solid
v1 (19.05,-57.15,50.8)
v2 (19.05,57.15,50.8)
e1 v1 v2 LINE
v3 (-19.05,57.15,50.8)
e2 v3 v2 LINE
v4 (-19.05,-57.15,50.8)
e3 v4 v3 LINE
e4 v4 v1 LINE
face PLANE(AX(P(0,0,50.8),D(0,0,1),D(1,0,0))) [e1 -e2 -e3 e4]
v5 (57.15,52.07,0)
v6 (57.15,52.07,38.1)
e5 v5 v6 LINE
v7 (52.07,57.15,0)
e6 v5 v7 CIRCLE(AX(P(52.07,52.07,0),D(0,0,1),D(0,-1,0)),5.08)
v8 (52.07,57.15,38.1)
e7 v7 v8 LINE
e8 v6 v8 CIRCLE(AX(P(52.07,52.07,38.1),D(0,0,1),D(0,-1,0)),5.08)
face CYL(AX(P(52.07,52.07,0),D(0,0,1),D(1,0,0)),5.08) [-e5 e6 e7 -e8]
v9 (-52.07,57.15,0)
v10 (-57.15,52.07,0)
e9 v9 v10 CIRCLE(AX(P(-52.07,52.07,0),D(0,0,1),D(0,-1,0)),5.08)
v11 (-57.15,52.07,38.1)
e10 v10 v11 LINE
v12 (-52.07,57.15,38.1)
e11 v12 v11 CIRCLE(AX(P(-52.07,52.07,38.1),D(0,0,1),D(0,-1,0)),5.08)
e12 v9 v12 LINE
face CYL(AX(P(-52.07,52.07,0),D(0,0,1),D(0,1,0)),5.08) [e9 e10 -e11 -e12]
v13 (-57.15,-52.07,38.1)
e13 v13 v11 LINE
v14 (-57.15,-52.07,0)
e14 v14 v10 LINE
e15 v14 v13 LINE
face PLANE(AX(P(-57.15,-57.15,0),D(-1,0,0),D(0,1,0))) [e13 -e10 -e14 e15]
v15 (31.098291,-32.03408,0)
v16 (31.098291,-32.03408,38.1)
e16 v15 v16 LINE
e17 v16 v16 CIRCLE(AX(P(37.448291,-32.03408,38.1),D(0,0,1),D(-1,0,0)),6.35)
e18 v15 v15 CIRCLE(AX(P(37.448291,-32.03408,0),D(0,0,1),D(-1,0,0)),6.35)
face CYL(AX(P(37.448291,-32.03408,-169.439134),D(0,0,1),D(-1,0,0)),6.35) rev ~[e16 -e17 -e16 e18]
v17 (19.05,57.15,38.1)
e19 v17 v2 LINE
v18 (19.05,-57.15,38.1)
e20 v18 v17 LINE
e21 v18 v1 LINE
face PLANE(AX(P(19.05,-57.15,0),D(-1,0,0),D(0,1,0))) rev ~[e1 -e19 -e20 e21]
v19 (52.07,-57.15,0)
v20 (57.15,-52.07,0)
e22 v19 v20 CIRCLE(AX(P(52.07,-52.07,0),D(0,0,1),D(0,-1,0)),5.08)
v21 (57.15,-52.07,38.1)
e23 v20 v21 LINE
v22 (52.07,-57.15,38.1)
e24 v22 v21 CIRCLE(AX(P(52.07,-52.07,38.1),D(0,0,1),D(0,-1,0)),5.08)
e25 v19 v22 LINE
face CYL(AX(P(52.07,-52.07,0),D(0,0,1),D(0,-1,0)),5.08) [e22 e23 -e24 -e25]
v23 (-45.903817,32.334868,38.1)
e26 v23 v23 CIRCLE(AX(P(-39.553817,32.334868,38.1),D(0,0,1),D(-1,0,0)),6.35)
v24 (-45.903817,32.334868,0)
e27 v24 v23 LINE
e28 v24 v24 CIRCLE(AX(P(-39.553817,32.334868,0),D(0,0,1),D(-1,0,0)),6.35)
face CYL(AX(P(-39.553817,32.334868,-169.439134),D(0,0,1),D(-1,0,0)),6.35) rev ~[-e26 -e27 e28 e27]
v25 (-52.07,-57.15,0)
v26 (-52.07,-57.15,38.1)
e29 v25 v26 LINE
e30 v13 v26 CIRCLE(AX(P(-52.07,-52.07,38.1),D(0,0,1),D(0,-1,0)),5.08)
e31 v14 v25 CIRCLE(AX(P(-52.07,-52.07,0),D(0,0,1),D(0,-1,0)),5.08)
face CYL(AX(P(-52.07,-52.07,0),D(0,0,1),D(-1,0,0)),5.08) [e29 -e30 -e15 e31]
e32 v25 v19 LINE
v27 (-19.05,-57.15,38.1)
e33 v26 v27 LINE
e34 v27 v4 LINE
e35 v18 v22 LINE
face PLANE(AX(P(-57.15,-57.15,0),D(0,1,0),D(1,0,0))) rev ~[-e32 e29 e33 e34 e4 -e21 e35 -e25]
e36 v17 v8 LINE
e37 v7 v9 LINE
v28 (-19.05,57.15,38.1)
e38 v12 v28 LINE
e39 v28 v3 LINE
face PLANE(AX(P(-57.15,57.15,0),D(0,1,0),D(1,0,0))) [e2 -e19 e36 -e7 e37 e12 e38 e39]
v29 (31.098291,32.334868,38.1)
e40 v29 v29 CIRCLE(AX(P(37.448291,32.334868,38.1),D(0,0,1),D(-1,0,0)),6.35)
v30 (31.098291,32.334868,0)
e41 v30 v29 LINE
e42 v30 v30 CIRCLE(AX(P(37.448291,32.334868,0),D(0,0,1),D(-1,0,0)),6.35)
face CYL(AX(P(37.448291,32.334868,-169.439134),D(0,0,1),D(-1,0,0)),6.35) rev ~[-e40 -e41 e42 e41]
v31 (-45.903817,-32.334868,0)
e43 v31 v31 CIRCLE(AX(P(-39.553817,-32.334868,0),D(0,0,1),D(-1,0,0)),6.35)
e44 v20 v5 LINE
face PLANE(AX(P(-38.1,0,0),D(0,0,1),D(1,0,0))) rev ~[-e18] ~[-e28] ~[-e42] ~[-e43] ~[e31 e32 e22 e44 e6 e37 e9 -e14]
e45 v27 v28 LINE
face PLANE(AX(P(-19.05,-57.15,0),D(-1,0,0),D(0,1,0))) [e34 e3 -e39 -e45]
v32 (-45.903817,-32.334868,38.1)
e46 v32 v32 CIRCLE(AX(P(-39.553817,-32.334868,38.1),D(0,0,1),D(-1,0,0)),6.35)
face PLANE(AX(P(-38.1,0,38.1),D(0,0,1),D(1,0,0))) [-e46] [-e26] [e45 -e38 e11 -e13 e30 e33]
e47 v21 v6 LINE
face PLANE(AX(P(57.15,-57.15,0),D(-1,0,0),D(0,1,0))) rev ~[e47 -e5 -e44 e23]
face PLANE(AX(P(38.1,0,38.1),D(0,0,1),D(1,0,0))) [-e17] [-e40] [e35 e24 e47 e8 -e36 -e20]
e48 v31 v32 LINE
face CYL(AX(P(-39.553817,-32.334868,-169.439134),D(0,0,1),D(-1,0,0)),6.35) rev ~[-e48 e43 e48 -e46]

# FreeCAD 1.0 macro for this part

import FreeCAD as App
import Part
import Sketcher

V = App.Vector
Q = App.Units.Quantity


def edges_at(feature, points):
    """Names of the edges that pass closest to the given points."""
    edges = feature.Shape.Edges
    near = lambda p: min(range(len(edges)), key=lambda i: edges[i].distToShape(Part.Vertex(*p))[0])
    return sorted({f"Edge{near(p) + 1}" for p in points})

doc = App.newDocument("Part")
body = doc.addObject("PartDesign::Body", "Body")

# Sketch on XY plane
sketch1 = body.newObject("Sketcher::SketchObject", "Sketch")
sketch1.AttachmentSupport = (doc.getObject("XY_Plane"), [""])
sketch1.MapMode = "FlatFace"
sketch1.addGeometry([
    Part.LineSegment(V(-19, 57, 0), V(-19, -57, 0)),
    Part.LineSegment(V(-19, -57, 0), V(19, -57, 0)),
    Part.LineSegment(V(19, -57, 0), V(19, 57, 0)),
    Part.LineSegment(V(19, 57, 0), V(-19, 57, 0)),
], False)
sketch1.addConstraint([
    Sketcher.Constraint("Coincident", 0, 2, 1, 1),
    Sketcher.Constraint("Coincident", 1, 2, 2, 1),
    Sketcher.Constraint("Coincident", 2, 2, 3, 1),
    Sketcher.Constraint("Coincident", 3, 2, 0, 1),
    Sketcher.Constraint("Vertical", 0),
    Sketcher.Constraint("Horizontal", 1),
    Sketcher.Constraint("Vertical", 2),
    Sketcher.Constraint("Horizontal", 3),
    Sketcher.Constraint("Symmetric", 0, 2, 2, 2, -1, 1),
    Sketcher.Constraint("DistanceX", 1, 1, 1, 2, Q("1.5 in")),
    Sketcher.Constraint("DistanceY", 0, 2, 0, 1, Q("4.5 in")),
])
pad1 = body.newObject("PartDesign::Pad", "Pad")
pad1.Profile = sketch1
pad1.Length = Q("2 in")

# Sketch on XY plane
sketch2 = body.newObject("Sketcher::SketchObject", "Sketch001")
sketch2.AttachmentSupport = (doc.getObject("XY_Plane"), [""])
sketch2.MapMode = "FlatFace"
sketch2.addGeometry([
    Part.LineSegment(V(19, 57, 0), V(19, -57, 0)),
    Part.LineSegment(V(19, -57, 0), V(57, -57, 0)),
    Part.LineSegment(V(57, -57, 0), V(57, 57, 0)),
    Part.LineSegment(V(57, 57, 0), V(19, 57, 0)),
], False)
sketch2.addConstraint([
    Sketcher.Constraint("Coincident", 0, 2, 1, 1),
    Sketcher.Constraint("Coincident", 1, 2, 2, 1),
    Sketcher.Constraint("Coincident", 2, 2, 3, 1),
    Sketcher.Constraint("Coincident", 3, 2, 0, 1),
    Sketcher.Constraint("Vertical", 0),
    Sketcher.Constraint("Horizontal", 1),
    Sketcher.Constraint("Vertical", 2),
    Sketcher.Constraint("Horizontal", 3),
    Sketcher.Constraint("DistanceX", 1, 1, 1, 2, Q("1.5 in")),
    Sketcher.Constraint("DistanceY", 0, 2, 0, 1, Q("4.5 in")),
    Sketcher.Constraint("DistanceX", -1, 1, 0, 2, Q("0.75 in")),
    Sketcher.Constraint("DistanceY", 0, 2, -1, 1, Q("2.25 in")),
])
pad2 = body.newObject("PartDesign::Pad", "Pad001")
pad2.Profile = sketch2
pad2.Length = Q("1.5 in")

# Sketch on XY plane
sketch3 = body.newObject("Sketcher::SketchObject", "Sketch002")
sketch3.AttachmentSupport = (doc.getObject("XY_Plane"), [""])
sketch3.MapMode = "FlatFace"
sketch3.addGeometry([
    Part.LineSegment(V(-57, 57, 0), V(-57, -57, 0)),
    Part.LineSegment(V(-57, -57, 0), V(-19, -57, 0)),
    Part.LineSegment(V(-19, -57, 0), V(-19, 57, 0)),
    Part.LineSegment(V(-19, 57, 0), V(-57, 57, 0)),
], False)
sketch3.addConstraint([
    Sketcher.Constraint("Coincident", 0, 2, 1, 1),
    Sketcher.Constraint("Coincident", 1, 2, 2, 1),
    Sketcher.Constraint("Coincident", 2, 2, 3, 1),
    Sketcher.Constraint("Coincident", 3, 2, 0, 1),
    Sketcher.Constraint("Vertical", 0),
    Sketcher.Constraint("Horizontal", 1),
    Sketcher.Constraint("Vertical", 2),
    Sketcher.Constraint("Horizontal", 3),
    Sketcher.Constraint("DistanceX", 1, 1, 1, 2, Q("1.5 in")),
    Sketcher.Constraint("DistanceY", 0, 2, 0, 1, Q("4.5 in")),
    Sketcher.Constraint("DistanceX", 0, 2, -1, 1, Q("2.25 in")),
    Sketcher.Constraint("DistanceY", 0, 2, -1, 1, Q("2.25 in")),
])
pad3 = body.newObject("PartDesign::Pad", "Pad002")
pad3.Profile = sketch3
pad3.Length = Q("1.5 in")

# Sketch on XY plane
sketch4 = body.newObject("Sketcher::SketchObject", "Sketch003")
sketch4.AttachmentSupport = (doc.getObject("XY_Plane"), [""])
sketch4.MapMode = "FlatFace"
sketch4.addGeometry(Part.Circle(V(37, 32, 0), V(0, 0, 1), 6), False)
sketch4.addConstraint([
    Sketcher.Constraint("Diameter", 0, Q("0.5 in")),
    Sketcher.Constraint("DistanceX", -1, 1, 0, 3, Q("37.448291 mm")),
    Sketcher.Constraint("DistanceY", -1, 1, 0, 3, Q("32.334868 mm")),
])
doc.recompute()
hole = body.newObject("PartDesign::Hole", "Hole")
hole.Profile = sketch4
hole.ThreadType = "None"
hole.Diameter = Q("0.5 in")
hole.DepthType = "ThroughAll"
hole.Reversed = True

# Sketch on XY plane
sketch5 = body.newObject("Sketcher::SketchObject", "Sketch004")
sketch5.AttachmentSupport = (doc.getObject("XY_Plane"), [""])
sketch5.MapMode = "FlatFace"
sketch5.addGeometry(Part.Circle(V(37, -32, 0), V(0, 0, 1), 6), False)
sketch5.addConstraint([
    Sketcher.Constraint("Diameter", 0, Q("0.5 in")),
    Sketcher.Constraint("DistanceX", -1, 1, 0, 3, Q("37.448291 mm")),
    Sketcher.Constraint("DistanceY", 0, 3, -1, 1, Q("32.03408 mm")),
])
doc.recompute()
hole2 = body.newObject("PartDesign::Hole", "Hole001")
hole2.Profile = sketch5
hole2.ThreadType = "None"
hole2.Diameter = Q("0.5 in")
hole2.DepthType = "ThroughAll"
hole2.Reversed = True

# Sketch on XY plane
sketch6 = body.newObject("Sketcher::SketchObject", "Sketch005")
sketch6.AttachmentSupport = (doc.getObject("XY_Plane"), [""])
sketch6.MapMode = "FlatFace"
sketch6.addGeometry(Part.Circle(V(-40, 32, 0), V(0, 0, 1), 6), False)
sketch6.addConstraint([
    Sketcher.Constraint("Diameter", 0, Q("0.5 in")),
    Sketcher.Constraint("DistanceX", 0, 3, -1, 1, Q("39.553817 mm")),
    Sketcher.Constraint("DistanceY", -1, 1, 0, 3, Q("32.334868 mm")),
])
doc.recompute()
hole3 = body.newObject("PartDesign::Hole", "Hole002")
hole3.Profile = sketch6
hole3.ThreadType = "None"
hole3.Diameter = Q("0.5 in")
hole3.DepthType = "ThroughAll"
hole3.Reversed = True

# Sketch on XY plane
sketch7 = body.newObject("Sketcher::SketchObject", "Sketch006")
sketch7.AttachmentSupport = (doc.getObject("XY_Plane"), [""])
sketch7.MapMode = "FlatFace"
sketch7.addGeometry(Part.Circle(V(-40, -32, 0), V(0, 0, 1), 6), False)
sketch7.addConstraint([
    Sketcher.Constraint("Diameter", 0, Q("0.5 in")),
    Sketcher.Constraint("DistanceX", 0, 3, -1, 1, Q("39.553817 mm")),
    Sketcher.Constraint("DistanceY", 0, 3, -1, 1, Q("32.334868 mm")),
])
doc.recompute()
hole4 = body.newObject("PartDesign::Hole", "Hole003")
hole4.Profile = sketch7
hole4.ThreadType = "None"
hole4.Diameter = Q("0.5 in")
hole4.DepthType = "ThroughAll"
hole4.Reversed = True
doc.recompute()

fillet = body.newObject("PartDesign::Fillet", "Fillet")
fillet.Base = (hole4, edges_at(hole4, [(-57.15, -57.15, 19.05)]))
fillet.Radius = Q("0.2 in")
doc.recompute()

fillet2 = body.newObject("PartDesign::Fillet", "Fillet001")
fillet2.Base = (fillet, edges_at(fillet, [(57.15, -57.15, 19.05)]))
fillet2.Radius = Q("0.2 in")
doc.recompute()

fillet3 = body.newObject("PartDesign::Fillet", "Fillet002")
fillet3.Base = (fillet2, edges_at(fillet2, [(57.15, 57.15, 19.05)]))
fillet3.Radius = Q("0.2 in")
doc.recompute()

fillet4 = body.newObject("PartDesign::Fillet", "Fillet003")
fillet4.Base = (fillet3, edges_at(fillet3, [(-57.15, 57.15, 19.05)]))
fillet4.Radius = Q("0.2 in")

doc.recompute()
